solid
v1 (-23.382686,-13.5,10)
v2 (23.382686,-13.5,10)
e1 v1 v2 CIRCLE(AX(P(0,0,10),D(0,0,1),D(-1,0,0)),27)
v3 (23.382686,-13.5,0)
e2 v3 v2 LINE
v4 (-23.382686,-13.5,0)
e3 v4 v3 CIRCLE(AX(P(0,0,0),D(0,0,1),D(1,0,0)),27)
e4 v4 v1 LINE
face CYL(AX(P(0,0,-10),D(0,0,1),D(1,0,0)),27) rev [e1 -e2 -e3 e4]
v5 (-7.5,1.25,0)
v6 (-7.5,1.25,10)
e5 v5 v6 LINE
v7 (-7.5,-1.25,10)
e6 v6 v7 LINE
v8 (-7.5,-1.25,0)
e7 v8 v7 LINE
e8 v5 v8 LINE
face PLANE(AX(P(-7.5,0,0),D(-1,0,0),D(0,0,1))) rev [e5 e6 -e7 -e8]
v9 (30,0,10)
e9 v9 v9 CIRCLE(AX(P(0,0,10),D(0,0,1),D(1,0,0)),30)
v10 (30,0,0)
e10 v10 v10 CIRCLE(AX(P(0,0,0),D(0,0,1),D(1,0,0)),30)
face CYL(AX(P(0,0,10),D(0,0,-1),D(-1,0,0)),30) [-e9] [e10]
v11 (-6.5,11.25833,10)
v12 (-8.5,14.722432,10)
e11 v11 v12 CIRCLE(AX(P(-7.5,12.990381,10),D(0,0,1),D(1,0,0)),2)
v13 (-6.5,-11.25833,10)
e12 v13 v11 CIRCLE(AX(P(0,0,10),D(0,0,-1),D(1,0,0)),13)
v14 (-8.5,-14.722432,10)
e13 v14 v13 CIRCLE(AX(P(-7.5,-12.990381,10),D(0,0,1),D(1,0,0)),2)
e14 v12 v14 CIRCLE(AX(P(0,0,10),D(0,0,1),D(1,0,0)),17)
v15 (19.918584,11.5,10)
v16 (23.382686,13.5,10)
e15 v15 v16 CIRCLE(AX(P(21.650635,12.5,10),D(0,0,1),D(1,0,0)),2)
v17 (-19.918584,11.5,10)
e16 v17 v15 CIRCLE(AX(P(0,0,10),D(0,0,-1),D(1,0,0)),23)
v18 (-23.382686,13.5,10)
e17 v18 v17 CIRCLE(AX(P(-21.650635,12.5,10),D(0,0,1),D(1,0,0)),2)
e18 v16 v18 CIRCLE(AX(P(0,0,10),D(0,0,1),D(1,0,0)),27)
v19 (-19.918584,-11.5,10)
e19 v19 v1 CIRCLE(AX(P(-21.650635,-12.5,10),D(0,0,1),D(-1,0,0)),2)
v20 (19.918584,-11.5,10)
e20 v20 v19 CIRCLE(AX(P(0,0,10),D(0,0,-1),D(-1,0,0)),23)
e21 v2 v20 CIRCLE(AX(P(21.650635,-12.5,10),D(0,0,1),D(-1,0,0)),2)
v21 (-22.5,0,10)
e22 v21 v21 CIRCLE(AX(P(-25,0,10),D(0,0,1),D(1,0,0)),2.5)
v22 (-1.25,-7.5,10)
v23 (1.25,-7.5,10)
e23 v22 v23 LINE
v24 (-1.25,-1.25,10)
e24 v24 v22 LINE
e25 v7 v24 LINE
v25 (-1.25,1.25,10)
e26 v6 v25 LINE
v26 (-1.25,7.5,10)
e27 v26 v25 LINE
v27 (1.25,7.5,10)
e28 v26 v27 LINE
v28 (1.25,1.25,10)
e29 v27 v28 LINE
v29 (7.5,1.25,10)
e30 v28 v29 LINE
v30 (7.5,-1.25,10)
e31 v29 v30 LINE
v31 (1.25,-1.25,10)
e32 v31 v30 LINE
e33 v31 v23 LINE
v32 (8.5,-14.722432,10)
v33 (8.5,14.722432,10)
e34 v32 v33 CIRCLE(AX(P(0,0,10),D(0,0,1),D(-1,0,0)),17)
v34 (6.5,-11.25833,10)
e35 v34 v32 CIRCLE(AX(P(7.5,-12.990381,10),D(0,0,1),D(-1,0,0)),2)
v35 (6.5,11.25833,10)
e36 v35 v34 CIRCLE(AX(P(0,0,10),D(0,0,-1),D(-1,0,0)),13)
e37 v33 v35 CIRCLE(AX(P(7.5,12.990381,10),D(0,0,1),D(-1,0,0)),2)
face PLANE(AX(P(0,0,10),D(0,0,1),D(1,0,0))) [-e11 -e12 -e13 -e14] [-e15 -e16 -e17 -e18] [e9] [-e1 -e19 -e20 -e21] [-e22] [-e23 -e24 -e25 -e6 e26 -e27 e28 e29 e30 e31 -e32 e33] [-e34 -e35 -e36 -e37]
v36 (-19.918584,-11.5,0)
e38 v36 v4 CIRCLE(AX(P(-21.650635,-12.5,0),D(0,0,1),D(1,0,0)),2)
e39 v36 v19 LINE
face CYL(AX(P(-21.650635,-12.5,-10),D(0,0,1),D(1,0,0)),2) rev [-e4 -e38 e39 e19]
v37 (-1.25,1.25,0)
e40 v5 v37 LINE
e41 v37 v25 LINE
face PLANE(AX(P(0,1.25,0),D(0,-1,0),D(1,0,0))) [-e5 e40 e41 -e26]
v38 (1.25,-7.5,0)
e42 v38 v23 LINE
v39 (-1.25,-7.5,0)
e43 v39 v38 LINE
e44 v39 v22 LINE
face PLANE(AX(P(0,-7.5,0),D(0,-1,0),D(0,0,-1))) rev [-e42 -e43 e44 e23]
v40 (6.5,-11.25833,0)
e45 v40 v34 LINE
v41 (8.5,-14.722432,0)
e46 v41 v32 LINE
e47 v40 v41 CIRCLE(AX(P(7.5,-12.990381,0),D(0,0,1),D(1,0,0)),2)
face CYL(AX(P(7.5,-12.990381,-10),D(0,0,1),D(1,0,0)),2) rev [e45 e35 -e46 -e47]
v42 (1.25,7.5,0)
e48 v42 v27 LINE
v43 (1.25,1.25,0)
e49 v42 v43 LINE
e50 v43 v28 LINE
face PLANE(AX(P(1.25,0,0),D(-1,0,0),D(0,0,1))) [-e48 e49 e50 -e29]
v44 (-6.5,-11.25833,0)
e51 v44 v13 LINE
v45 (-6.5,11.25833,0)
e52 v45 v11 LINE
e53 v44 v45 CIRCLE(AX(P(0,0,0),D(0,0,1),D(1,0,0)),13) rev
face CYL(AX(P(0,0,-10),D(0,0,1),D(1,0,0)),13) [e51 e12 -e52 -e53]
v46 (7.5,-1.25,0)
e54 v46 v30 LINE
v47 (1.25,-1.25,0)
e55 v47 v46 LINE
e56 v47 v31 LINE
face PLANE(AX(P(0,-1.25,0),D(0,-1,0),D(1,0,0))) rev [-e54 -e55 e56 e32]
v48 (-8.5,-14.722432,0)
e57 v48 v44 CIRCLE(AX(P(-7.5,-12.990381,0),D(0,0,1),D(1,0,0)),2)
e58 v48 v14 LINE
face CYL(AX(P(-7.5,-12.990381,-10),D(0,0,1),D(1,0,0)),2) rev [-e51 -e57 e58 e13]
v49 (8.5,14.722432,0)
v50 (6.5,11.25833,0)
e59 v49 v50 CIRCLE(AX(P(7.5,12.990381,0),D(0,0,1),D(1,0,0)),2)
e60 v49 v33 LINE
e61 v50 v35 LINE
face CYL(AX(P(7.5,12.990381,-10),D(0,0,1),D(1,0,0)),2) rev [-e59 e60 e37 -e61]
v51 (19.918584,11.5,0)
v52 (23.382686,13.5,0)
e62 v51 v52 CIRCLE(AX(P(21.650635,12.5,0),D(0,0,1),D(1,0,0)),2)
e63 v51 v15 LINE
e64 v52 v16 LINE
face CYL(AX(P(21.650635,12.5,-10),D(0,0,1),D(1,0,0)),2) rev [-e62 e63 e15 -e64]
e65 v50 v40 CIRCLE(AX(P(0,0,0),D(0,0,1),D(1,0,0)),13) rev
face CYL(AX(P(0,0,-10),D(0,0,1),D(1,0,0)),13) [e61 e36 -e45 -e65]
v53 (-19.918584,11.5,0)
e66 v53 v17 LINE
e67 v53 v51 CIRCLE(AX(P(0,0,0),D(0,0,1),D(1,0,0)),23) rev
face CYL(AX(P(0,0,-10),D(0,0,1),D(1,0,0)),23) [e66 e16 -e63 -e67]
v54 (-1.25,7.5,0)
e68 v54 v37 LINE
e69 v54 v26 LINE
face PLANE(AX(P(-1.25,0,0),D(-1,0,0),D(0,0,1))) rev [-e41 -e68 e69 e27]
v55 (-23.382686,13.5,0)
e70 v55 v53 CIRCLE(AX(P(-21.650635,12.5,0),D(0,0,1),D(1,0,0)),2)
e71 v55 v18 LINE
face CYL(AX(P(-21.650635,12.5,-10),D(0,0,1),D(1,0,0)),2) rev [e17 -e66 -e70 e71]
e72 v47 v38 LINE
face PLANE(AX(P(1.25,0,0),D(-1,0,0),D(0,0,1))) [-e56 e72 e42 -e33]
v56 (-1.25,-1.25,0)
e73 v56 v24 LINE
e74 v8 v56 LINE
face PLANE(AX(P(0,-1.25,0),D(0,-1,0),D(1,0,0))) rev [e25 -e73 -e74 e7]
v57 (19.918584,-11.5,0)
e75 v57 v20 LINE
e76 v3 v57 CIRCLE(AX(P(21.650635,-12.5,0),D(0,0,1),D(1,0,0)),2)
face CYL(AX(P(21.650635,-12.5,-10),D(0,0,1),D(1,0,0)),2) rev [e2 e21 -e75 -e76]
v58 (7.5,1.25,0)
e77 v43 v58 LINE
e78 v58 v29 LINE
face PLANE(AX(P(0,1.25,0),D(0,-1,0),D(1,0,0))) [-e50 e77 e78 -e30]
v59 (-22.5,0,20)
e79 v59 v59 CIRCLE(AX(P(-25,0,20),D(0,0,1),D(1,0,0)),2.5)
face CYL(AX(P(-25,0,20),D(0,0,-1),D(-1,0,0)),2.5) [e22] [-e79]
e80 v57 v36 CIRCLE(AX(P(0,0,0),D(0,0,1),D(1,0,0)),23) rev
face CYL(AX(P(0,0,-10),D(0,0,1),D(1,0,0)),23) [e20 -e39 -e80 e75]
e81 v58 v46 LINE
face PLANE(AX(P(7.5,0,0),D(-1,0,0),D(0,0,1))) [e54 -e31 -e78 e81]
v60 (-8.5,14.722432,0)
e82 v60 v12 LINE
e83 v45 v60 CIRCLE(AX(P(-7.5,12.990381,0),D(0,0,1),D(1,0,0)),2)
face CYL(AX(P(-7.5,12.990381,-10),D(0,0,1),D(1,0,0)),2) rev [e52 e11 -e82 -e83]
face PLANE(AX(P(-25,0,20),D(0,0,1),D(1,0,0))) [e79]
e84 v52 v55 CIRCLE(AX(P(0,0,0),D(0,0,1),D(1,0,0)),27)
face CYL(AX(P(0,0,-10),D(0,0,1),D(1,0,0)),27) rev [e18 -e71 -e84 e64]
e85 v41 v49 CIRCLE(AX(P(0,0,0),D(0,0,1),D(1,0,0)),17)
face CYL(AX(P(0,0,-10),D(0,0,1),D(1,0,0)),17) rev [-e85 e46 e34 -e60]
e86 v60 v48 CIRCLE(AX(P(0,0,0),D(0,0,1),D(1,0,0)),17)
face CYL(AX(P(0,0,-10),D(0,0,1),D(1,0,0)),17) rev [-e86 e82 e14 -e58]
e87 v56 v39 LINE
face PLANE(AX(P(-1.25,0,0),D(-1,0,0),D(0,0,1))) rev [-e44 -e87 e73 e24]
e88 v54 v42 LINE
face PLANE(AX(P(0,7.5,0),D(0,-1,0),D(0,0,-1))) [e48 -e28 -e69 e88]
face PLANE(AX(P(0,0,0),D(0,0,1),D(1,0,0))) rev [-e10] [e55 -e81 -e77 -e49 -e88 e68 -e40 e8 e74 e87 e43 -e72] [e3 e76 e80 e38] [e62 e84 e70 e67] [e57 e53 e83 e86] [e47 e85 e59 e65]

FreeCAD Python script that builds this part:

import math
import FreeCAD as App
import Part
import Sketcher

V = App.Vector
Q = App.Units.Quantity

doc = App.newDocument("Part")
params = doc.addObject("Spreadsheet::Sheet", "Params")
for row, (alias, value) in enumerate([
    ("sketch1_diameter", "60 mm"),
    ("pad1_length", "10 mm"),
    ("sketch2_diameter", "5 mm"),
    ("pad2_length", "10 mm"),
    ("sketch3_width", "2.5 mm"),
    ("sketch3_width2", "6.25 mm"),
    ("pocket1_length", "10 mm"),
    ("sketch4_radius", "27 mm"),
    ("sketch4_radius2", "2 mm"),
    ("sketch4_radius3", "17 mm"),
    ("pocket2_length", "20 mm"),
], start=1):
    params.set(f"A{row}", alias)
    params.set(f"B{row}", "=" + value)
    params.setAlias(f"B{row}", alias)

body = doc.addObject("PartDesign::Body", "Body")

sketch1 = body.newObject("Sketcher::SketchObject", "Sketch")
sketch1.AttachmentSupport = (doc.getObject("XY_Plane"), [""])
sketch1.MapMode = "FlatFace"
sketch1.addGeometry(Part.Circle(V(0, 0, 0), V(0, 0, 1), 30), False)
sketch1.addConstraint(Sketcher.Constraint("Coincident", 0, 3, -1, 1))
sketch1.addConstraint(Sketcher.Constraint("Diameter", 0, Q("60 mm")))
sketch1.setExpression("Constraints[1]", "Params.sketch1_diameter")
pad1 = body.newObject("PartDesign::Pad", "Pad")
pad1.Profile = sketch1
pad1.setExpression("Length", "Params.pad1_length")

sketch2 = body.newObject("Sketcher::SketchObject", "Sketch001")
sketch2.AttachmentSupport = (doc.getObject("XY_Plane"), [""])
sketch2.MapMode = "FlatFace"
sketch2.AttachmentOffset = App.Placement(V(0, 0, 10), App.Rotation())
sketch2.addGeometry(Part.Circle(V(-25, 0, 0), V(0, 0, 1), 2.5), False)
sketch2.addConstraint(Sketcher.Constraint("PointOnObject", 0, 3, -1))
sketch2.addConstraint(Sketcher.Constraint("Diameter", 0, Q("5 mm")))
sketch2.addConstraint(Sketcher.Constraint("DistanceX", 0, 3, -1, 1, Q("25 mm")))
sketch2.setExpression("Constraints[1]", "Params.sketch2_diameter")
pad2 = body.newObject("PartDesign::Pad", "Pad001")
pad2.Profile = sketch2
pad2.setExpression("Length", "Params.pad2_length")

sketch3 = body.newObject("Sketcher::SketchObject", "Sketch002")
sketch3.AttachmentSupport = (doc.getObject("XY_Plane"), [""])
sketch3.MapMode = "FlatFace"
sketch3.AttachmentOffset = App.Placement(V(0, 0, 10), App.Rotation())
sketch3.addGeometry(Part.LineSegment(V(-1.2, 7.5, 0), V(-1.2, 1.2, 0)), False)
sketch3.addGeometry(Part.LineSegment(V(-1.2, 1.2, 0), V(-7.5, 1.2, 0)), False)
sketch3.addGeometry(Part.LineSegment(V(-7.5, 1.2, 0), V(-7.5, -1.2, 0)), False)
sketch3.addGeometry(Part.LineSegment(V(-7.5, -1.2, 0), V(-1.2, -1.2, 0)), False)
sketch3.addGeometry(Part.LineSegment(V(-1.2, -1.2, 0), V(-1.2, -7.5, 0)), False)
sketch3.addGeometry(Part.LineSegment(V(-1.2, -7.5, 0), V(1.2, -7.5, 0)), False)
sketch3.addGeometry(Part.LineSegment(V(1.2, -7.5, 0), V(1.2, -1.2, 0)), False)
sketch3.addGeometry(Part.LineSegment(V(1.2, -1.2, 0), V(7.5, -1.2, 0)), False)
sketch3.addGeometry(Part.LineSegment(V(7.5, -1.2, 0), V(7.5, 1.2, 0)), False)
sketch3.addGeometry(Part.LineSegment(V(7.5, 1.2, 0), V(1.2, 1.2, 0)), False)
sketch3.addGeometry(Part.LineSegment(V(1.2, 1.2, 0), V(1.2, 7.5, 0)), False)
sketch3.addGeometry(Part.LineSegment(V(1.2, 7.5, 0), V(-1.2, 7.5, 0)), False)
sketch3.addConstraint(Sketcher.Constraint("Coincident", 0, 2, 1, 1))
sketch3.addConstraint(Sketcher.Constraint("Coincident", 1, 2, 2, 1))
sketch3.addConstraint(Sketcher.Constraint("Coincident", 2, 2, 3, 1))
sketch3.addConstraint(Sketcher.Constraint("Coincident", 3, 2, 4, 1))
sketch3.addConstraint(Sketcher.Constraint("Coincident", 4, 2, 5, 1))
sketch3.addConstraint(Sketcher.Constraint("Coincident", 5, 2, 6, 1))
sketch3.addConstraint(Sketcher.Constraint("Coincident", 6, 2, 7, 1))
sketch3.addConstraint(Sketcher.Constraint("Coincident", 7, 2, 8, 1))
sketch3.addConstraint(Sketcher.Constraint("Coincident", 8, 2, 9, 1))
sketch3.addConstraint(Sketcher.Constraint("Coincident", 9, 2, 10, 1))
sketch3.addConstraint(Sketcher.Constraint("Coincident", 10, 2, 11, 1))
sketch3.addConstraint(Sketcher.Constraint("Coincident", 11, 2, 0, 1))
sketch3.addConstraint(Sketcher.Constraint("Vertical", 0))
sketch3.addConstraint(Sketcher.Constraint("Horizontal", 1))
sketch3.addConstraint(Sketcher.Constraint("Vertical", 2))
sketch3.addConstraint(Sketcher.Constraint("Horizontal", 3))
sketch3.addConstraint(Sketcher.Constraint("Vertical", 4))
sketch3.addConstraint(Sketcher.Constraint("Horizontal", 5))
sketch3.addConstraint(Sketcher.Constraint("Vertical", 6))
sketch3.addConstraint(Sketcher.Constraint("Horizontal", 7))
sketch3.addConstraint(Sketcher.Constraint("Vertical", 8))
sketch3.addConstraint(Sketcher.Constraint("Horizontal", 9))
sketch3.addConstraint(Sketcher.Constraint("Vertical", 10))
sketch3.addConstraint(Sketcher.Constraint("Horizontal", 11))
sketch3.addConstraint(Sketcher.Constraint("Symmetric", 0, 2, 6, 2, -1, 1))
sketch3.addConstraint(Sketcher.Constraint("Symmetric", 2, 2, 8, 2, -1, 1))
sketch3.addConstraint(Sketcher.Constraint("Symmetric", 4, 2, 10, 2, -1, 1))
sketch3.addConstraint(Sketcher.Constraint("Symmetric", 3, 2, 6, 2, -2))
sketch3.addConstraint(Sketcher.Constraint("Equal", 9, 0))
sketch3.addConstraint(Sketcher.Constraint("Equal", 11, 2))
sketch3.addConstraint(Sketcher.Constraint("DistanceX", 5, 1, 5, 2, Q("2.5 mm")))
sketch3.addConstraint(Sketcher.Constraint("DistanceX", 1, 2, 1, 1, Q("6.25 mm")))
sketch3.setExpression("Constraints[30]", "Params.sketch3_width")
sketch3.setExpression("Constraints[31]", "Params.sketch3_width2")
pocket1 = body.newObject("PartDesign::Pocket", "Pocket")
pocket1.Profile = sketch3
pocket1.setExpression("Length", "Params.pocket1_length")

sketch4 = body.newObject("Sketcher::SketchObject", "Sketch003")
sketch4.AttachmentSupport = (doc.getObject("XY_Plane"), [""])
sketch4.MapMode = "FlatFace"
sketch4.AttachmentOffset = App.Placement(V(0, 0, 10), App.Rotation())
sketch4.addGeometry(Part.ArcOfCircle(Part.Circle(V(0, 0, 0), V(0, 0, 1), 27), math.radians(30), math.radians(150)), False)
sketch4.addGeometry(Part.ArcOfCircle(Part.Circle(V(-21.7, 12.5, 0), V(0, 0, 1), 2), math.radians(150), math.radians(330)), False)
sketch4.addGeometry(Part.ArcOfCircle(Part.Circle(V(0, 0, 0), V(0, 0, 1), 23), math.radians(30), math.radians(150)), False)
sketch4.addGeometry(Part.ArcOfCircle(Part.Circle(V(21.7, 12.5, 0), V(0, 0, 1), 2), math.radians(-150), math.radians(30)), False)
sketch4.addGeometry(Part.ArcOfCircle(Part.Circle(V(0, 0, 0), V(0, 0, 1), 27), math.radians(-150), math.radians(-30)), False)
sketch4.addGeometry(Part.ArcOfCircle(Part.Circle(V(21.7, -12.5, 0), V(0, 0, 1), 2), math.radians(-30), math.radians(150)), False)
sketch4.addGeometry(Part.ArcOfCircle(Part.Circle(V(0, 0, 0), V(0, 0, 1), 23), math.radians(-150), math.radians(-30)), False)
sketch4.addGeometry(Part.ArcOfCircle(Part.Circle(V(-21.7, -12.5, 0), V(0, 0, 1), 2), math.radians(30), math.radians(210)), False)
sketch4.addGeometry(Part.ArcOfCircle(Part.Circle(V(0, 0, 0), V(0, 0, 1), 17), math.radians(120), math.radians(240)), False)
sketch4.addGeometry(Part.ArcOfCircle(Part.Circle(V(-7.5, -13, 0), V(0, 0, 1), 2), math.radians(-120), math.radians(60)), False)
sketch4.addGeometry(Part.ArcOfCircle(Part.Circle(V(0, 0, 0), V(0, 0, 1), 13), math.radians(120), math.radians(240)), False)
sketch4.addGeometry(Part.ArcOfCircle(Part.Circle(V(-7.5, 13, 0), V(0, 0, 1), 2), math.radians(-60), math.radians(120)), False)
sketch4.addGeometry(Part.ArcOfCircle(Part.Circle(V(0, 0, 0), V(0, 0, 1), 17), math.radians(-60), math.radians(60)), False)
sketch4.addGeometry(Part.ArcOfCircle(Part.Circle(V(7.5, 13, 0), V(0, 0, 1), 2), math.radians(60), math.radians(240)), False)
sketch4.addGeometry(Part.ArcOfCircle(Part.Circle(V(0, 0, 0), V(0, 0, 1), 13), math.radians(-60), math.radians(60)), False)
sketch4.addGeometry(Part.ArcOfCircle(Part.Circle(V(7.5, -13, 0), V(0, 0, 1), 2), math.radians(120), math.radians(300)), False)
sketch4.addConstraint(Sketcher.Constraint("Tangent", 0, 2, 1, 1))
sketch4.addConstraint(Sketcher.Constraint("Tangent", 1, 2, 2, 2))
sketch4.addConstraint(Sketcher.Constraint("Tangent", 2, 1, 3, 1))
sketch4.addConstraint(Sketcher.Constraint("Tangent", 3, 2, 0, 1))
sketch4.addConstraint(Sketcher.Constraint("Tangent", 4, 2, 5, 1))
sketch4.addConstraint(Sketcher.Constraint("Tangent", 5, 2, 6, 2))
sketch4.addConstraint(Sketcher.Constraint("Tangent", 6, 1, 7, 1))
sketch4.addConstraint(Sketcher.Constraint("Tangent", 7, 2, 4, 1))
sketch4.addConstraint(Sketcher.Constraint("Tangent", 8, 2, 9, 1))
sketch4.addConstraint(Sketcher.Constraint("Tangent", 9, 2, 10, 2))
sketch4.addConstraint(Sketcher.Constraint("Tangent", 10, 1, 11, 1))
sketch4.addConstraint(Sketcher.Constraint("Tangent", 11, 2, 8, 1))
sketch4.addConstraint(Sketcher.Constraint("Tangent", 12, 2, 13, 1))
sketch4.addConstraint(Sketcher.Constraint("Tangent", 13, 2, 14, 2))
sketch4.addConstraint(Sketcher.Constraint("Tangent", 14, 1, 15, 1))
sketch4.addConstraint(Sketcher.Constraint("Tangent", 15, 2, 12, 1))
sketch4.addConstraint(Sketcher.Constraint("Coincident", 0, 3, -1, 1))
sketch4.addConstraint(Sketcher.Constraint("Coincident", 2, 3, -1, 1))
sketch4.addConstraint(Sketcher.Constraint("Coincident", 4, 3, -1, 1))
sketch4.addConstraint(Sketcher.Constraint("Coincident", 6, 3, -1, 1))
sketch4.addConstraint(Sketcher.Constraint("Coincident", 8, 3, -1, 1))
sketch4.addConstraint(Sketcher.Constraint("Coincident", 10, 3, -1, 1))
sketch4.addConstraint(Sketcher.Constraint("Coincident", 12, 3, -1, 1))
sketch4.addConstraint(Sketcher.Constraint("Coincident", 14, 3, -1, 1))
sketch4.addConstraint(Sketcher.Constraint("Equal", 0, 4))
sketch4.addConstraint(Sketcher.Constraint("Equal", 3, 5))
sketch4.addConstraint(Sketcher.Constraint("Equal", 7, 9))
sketch4.addConstraint(Sketcher.Constraint("Equal", 8, 12))
sketch4.addConstraint(Sketcher.Constraint("Equal", 11, 13))
sketch4.addConstraint(Sketcher.Constraint("Horizontal", 1, 3, 3, 3))
sketch4.addConstraint(Sketcher.Constraint("Horizontal", 5, 3, 7, 3))
sketch4.addConstraint(Sketcher.Constraint("Horizontal", 11, 3, 13, 3))
sketch4.addConstraint(Sketcher.Constraint("Horizontal", 9, 3, 15, 3))
sketch4.addConstraint(Sketcher.Constraint("Vertical", 3, 3, 5, 3))
sketch4.addConstraint(Sketcher.Constraint("Vertical", 9, 3, 11, 3))
sketch4.addConstraint(Sketcher.Constraint("Radius", 0, Q("27 mm")))
sketch4.addConstraint(Sketcher.Constraint("Radius", 1, Q("2 mm")))
sketch4.addConstraint(Sketcher.Constraint("Radius", 8, Q("17 mm")))
sketch4.addConstraint(Sketcher.Constraint("DistanceY", 5, 3, 3, 3, Q("25 mm")))
sketch4.addConstraint(Sketcher.Constraint("DistanceX", 11, 3, 13, 3, Q("15 mm")))
sketch4.setExpression("Constraints[35]", "Params.sketch4_radius")
sketch4.setExpression("Constraints[36]", "Params.sketch4_radius2")
sketch4.setExpression("Constraints[37]", "Params.sketch4_radius3")
pocket2 = body.newObject("PartDesign::Pocket", "Pocket001")
pocket2.Profile = sketch4
pocket2.setExpression("Length", "Params.pocket2_length")

doc.recompute()
